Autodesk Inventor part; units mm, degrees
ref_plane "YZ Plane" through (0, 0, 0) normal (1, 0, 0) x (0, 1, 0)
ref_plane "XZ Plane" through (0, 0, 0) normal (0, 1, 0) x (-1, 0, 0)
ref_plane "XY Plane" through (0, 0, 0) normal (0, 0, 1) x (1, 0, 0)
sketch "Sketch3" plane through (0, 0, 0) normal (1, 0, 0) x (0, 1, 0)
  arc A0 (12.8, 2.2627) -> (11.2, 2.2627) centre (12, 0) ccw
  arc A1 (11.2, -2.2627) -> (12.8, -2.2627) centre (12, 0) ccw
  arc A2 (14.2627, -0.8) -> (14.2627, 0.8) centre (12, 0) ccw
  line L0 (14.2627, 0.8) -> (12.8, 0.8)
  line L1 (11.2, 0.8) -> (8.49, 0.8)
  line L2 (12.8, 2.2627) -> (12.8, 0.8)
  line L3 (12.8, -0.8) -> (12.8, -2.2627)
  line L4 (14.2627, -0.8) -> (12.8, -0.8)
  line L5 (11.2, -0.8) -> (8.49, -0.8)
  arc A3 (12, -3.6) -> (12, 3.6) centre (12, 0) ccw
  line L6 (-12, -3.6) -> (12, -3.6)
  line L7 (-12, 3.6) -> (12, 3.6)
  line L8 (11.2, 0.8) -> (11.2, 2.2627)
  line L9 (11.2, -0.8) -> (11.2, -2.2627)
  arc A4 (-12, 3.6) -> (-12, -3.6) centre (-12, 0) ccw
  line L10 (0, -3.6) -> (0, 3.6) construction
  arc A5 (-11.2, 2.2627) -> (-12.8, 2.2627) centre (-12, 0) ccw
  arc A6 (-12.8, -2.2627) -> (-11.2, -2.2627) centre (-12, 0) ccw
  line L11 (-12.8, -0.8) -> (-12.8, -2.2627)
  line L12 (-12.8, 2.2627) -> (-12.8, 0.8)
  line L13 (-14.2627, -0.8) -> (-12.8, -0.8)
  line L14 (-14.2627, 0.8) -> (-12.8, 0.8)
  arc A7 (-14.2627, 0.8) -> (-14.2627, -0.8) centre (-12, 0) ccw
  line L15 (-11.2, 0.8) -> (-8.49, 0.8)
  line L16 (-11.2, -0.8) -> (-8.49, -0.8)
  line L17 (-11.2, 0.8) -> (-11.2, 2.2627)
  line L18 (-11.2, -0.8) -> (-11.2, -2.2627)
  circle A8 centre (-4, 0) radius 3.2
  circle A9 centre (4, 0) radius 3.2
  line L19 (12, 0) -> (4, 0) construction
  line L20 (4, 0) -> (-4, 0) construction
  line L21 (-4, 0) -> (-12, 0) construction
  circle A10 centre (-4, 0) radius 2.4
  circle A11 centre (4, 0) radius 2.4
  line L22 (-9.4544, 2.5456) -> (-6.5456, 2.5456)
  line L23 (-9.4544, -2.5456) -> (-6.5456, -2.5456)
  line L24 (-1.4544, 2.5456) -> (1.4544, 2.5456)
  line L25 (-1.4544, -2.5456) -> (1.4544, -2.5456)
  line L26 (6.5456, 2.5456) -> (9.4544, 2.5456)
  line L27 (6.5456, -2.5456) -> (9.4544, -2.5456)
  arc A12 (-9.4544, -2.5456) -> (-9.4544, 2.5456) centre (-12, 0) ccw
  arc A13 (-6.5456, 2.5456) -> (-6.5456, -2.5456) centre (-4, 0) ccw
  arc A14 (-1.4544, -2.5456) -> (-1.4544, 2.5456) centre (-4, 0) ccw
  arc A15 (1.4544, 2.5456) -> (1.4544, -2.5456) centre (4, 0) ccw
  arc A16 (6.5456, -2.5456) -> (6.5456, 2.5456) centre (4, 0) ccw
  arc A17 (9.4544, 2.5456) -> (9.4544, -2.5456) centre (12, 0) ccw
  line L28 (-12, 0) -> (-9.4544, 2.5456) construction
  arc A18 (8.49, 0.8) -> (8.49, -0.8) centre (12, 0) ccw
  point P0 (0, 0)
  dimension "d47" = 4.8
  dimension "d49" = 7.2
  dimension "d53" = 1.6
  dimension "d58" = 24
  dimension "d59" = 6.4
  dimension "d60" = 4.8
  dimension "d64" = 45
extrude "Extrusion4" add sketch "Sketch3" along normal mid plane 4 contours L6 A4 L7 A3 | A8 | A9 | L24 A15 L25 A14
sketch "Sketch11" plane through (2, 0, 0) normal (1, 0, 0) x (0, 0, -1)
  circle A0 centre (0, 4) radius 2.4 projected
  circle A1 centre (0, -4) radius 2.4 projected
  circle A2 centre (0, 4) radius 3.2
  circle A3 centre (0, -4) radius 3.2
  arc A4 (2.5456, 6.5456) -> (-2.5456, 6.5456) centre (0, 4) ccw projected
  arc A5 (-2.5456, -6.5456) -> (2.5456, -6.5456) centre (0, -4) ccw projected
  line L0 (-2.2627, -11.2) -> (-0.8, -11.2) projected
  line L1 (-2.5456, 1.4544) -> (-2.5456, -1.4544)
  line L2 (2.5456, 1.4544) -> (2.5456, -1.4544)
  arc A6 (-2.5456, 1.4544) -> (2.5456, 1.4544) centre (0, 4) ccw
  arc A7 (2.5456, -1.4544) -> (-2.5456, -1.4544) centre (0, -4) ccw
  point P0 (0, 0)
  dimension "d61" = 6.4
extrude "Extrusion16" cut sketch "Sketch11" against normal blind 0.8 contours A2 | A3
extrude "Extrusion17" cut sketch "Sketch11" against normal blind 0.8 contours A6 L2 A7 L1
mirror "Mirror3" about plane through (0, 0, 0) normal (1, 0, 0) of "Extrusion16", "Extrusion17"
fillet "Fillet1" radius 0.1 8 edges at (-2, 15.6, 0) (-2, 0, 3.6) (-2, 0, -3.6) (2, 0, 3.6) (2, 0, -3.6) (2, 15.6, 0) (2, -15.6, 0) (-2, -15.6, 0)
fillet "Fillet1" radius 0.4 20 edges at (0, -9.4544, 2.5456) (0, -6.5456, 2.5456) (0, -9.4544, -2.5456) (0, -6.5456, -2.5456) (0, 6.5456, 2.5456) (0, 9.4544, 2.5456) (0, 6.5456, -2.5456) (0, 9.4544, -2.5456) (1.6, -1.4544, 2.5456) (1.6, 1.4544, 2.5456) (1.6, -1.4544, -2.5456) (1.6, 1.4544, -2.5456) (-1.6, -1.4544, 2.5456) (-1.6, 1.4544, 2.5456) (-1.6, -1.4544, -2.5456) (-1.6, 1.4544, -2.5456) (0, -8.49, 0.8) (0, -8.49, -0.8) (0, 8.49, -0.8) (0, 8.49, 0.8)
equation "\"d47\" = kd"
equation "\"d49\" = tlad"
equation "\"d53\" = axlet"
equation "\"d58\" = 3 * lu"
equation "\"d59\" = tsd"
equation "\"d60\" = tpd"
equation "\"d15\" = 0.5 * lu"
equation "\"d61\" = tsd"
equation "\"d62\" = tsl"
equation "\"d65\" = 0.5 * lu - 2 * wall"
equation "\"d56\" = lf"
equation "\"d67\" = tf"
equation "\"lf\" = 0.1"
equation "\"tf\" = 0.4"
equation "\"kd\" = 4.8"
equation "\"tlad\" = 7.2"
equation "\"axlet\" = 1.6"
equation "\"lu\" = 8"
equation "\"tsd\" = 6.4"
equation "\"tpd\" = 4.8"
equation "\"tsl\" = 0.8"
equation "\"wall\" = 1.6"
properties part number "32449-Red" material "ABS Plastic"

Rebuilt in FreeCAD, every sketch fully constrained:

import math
import FreeCAD as App
import Part
import Sketcher

V = App.Vector


def edges_at(feature, points):
    """Names of the edges that pass closest to the given points."""
    edges = feature.Shape.Edges
    near = lambda p: min(range(len(edges)), key=lambda i: edges[i].distToShape(Part.Vertex(*p))[0])
    return sorted({f"Edge{near(p) + 1}" for p in points})

doc = App.newDocument("Part")
body = doc.addObject("PartDesign::Body", "Body")

sketch1 = doc.addObject("Sketcher::SketchObject", "Sketch")
body.addObject(sketch1)
sketch1.AttachmentSupport = (doc.YZ_Plane, [""])
sketch1.MapMode = "FlatFace"
sketch1.addGeometry(Part.LineSegment(V(-12, -3.6, 0), V(12, -3.6, 0)), False)
sketch1.addGeometry(Part.ArcOfCircle(Part.Circle(V(12, 0, 0), V(0, 0, 1), 3.6), math.radians(-90), math.radians(90)), False)
sketch1.addGeometry(Part.LineSegment(V(12, 3.6, 0), V(-12, 3.6, 0)), False)
sketch1.addGeometry(Part.ArcOfCircle(Part.Circle(V(-12, 0, 0), V(0, 0, 1), 3.6), math.radians(90), math.radians(270)), False)
sketch1.addGeometry(Part.ArcOfCircle(Part.Circle(V(-12, 0, 0), V(0, 0, 1), 2.399961), math.radians(70.528448), math.radians(109.471552)), False)
sketch1.addGeometry(Part.LineSegment(V(-11.2, 2.2627, 0), V(-11.2, 0.8, 0)), False)
sketch1.addGeometry(Part.LineSegment(V(-11.2, 0.8, 0), V(-8.49, 0.8, 0)), False)
sketch1.addGeometry(Part.ArcOfCircle(Part.Circle(V(-12, 0, 0), V(0, 0, 1), 3.600022), math.radians(12.839538), math.radians(45)), False)
sketch1.addGeometry(Part.LineSegment(V(-9.4544, 2.5456, 0), V(-6.5456, 2.5456, 0)), False)
sketch1.addGeometry(Part.ArcOfCircle(Part.Circle(V(-4, 0, 0), V(0, 0, 1), 3.600022), math.radians(135), math.radians(225)), False)
sketch1.addGeometry(Part.LineSegment(V(-6.5456, -2.5456, 0), V(-9.4544, -2.5456, 0)), False)
sketch1.addGeometry(Part.ArcOfCircle(Part.Circle(V(-12, 0, 0), V(0, 0, 1), 3.600022), math.radians(-45), math.radians(-12.839538)), False)
sketch1.addGeometry(Part.LineSegment(V(-8.49, -0.8, 0), V(-11.2, -0.8, 0)), False)
sketch1.addGeometry(Part.LineSegment(V(-11.2, -0.8, 0), V(-11.2, -2.2627, 0)), False)
sketch1.addGeometry(Part.ArcOfCircle(Part.Circle(V(-12, 0, 0), V(0, 0, 1), 2.399961), math.radians(-109.471552), math.radians(-70.528448)), False)
sketch1.addGeometry(Part.LineSegment(V(-12.8, -2.2627, 0), V(-12.8, -0.8, 0)), False)
sketch1.addGeometry(Part.LineSegment(V(-12.8, -0.8, 0), V(-14.2627, -0.8, 0)), False)
sketch1.addGeometry(Part.ArcOfCircle(Part.Circle(V(-12, 0, 0), V(0, 0, 1), 2.399961), math.radians(160.528448), math.radians(199.471552)), False)
sketch1.addGeometry(Part.LineSegment(V(-14.2627, 0.8, 0), V(-12.8, 0.8, 0)), False)
sketch1.addGeometry(Part.LineSegment(V(-12.8, 0.8, 0), V(-12.8, 2.2627, 0)), False)
sketch1.addGeometry(Part.ArcOfCircle(Part.Circle(V(12, 0, 0), V(0, 0, 1), 2.399961), math.radians(70.528448), math.radians(109.471552)), False)
sketch1.addGeometry(Part.LineSegment(V(12.8, 2.2627, 0), V(12.8, 0.8, 0)), False)
sketch1.addGeometry(Part.LineSegment(V(12.8, 0.8, 0), V(14.2627, 0.8, 0)), False)
sketch1.addGeometry(Part.ArcOfCircle(Part.Circle(V(12, 0, 0), V(0, 0, 1), 2.399961), math.radians(-19.471552), math.radians(19.471552)), False)
sketch1.addGeometry(Part.LineSegment(V(14.2627, -0.8, 0), V(12.8, -0.8, 0)), False)
sketch1.addGeometry(Part.LineSegment(V(12.8, -0.8, 0), V(12.8, -2.2627, 0)), False)
sketch1.addGeometry(Part.ArcOfCircle(Part.Circle(V(12, 0, 0), V(0, 0, 1), 2.399961), math.radians(-109.471552), math.radians(-70.528448)), False)
sketch1.addGeometry(Part.LineSegment(V(11.2, -2.2627, 0), V(11.2, -0.8, 0)), False)
sketch1.addGeometry(Part.LineSegment(V(11.2, -0.8, 0), V(8.49, -0.8, 0)), False)
sketch1.addGeometry(Part.ArcOfCircle(Part.Circle(V(12, 0, 0), V(0, 0, 1), 3.600022), math.radians(-167.160462), math.radians(-135)), False)
sketch1.addGeometry(Part.LineSegment(V(9.4544, -2.5456, 0), V(6.5456, -2.5456, 0)), False)
sketch1.addGeometry(Part.ArcOfCircle(Part.Circle(V(4, 0, 0), V(0, 0, 1), 3.600022), math.radians(-45), math.radians(45)), False)
sketch1.addGeometry(Part.LineSegment(V(6.5456, 2.5456, 0), V(9.4544, 2.5456, 0)), False)
sketch1.addGeometry(Part.ArcOfCircle(Part.Circle(V(12, 0, 0), V(0, 0, 1), 3.600022), math.radians(135), math.radians(167.160462)), False)
sketch1.addGeometry(Part.LineSegment(V(8.49, 0.8, 0), V(11.2, 0.8, 0)), False)
sketch1.addGeometry(Part.LineSegment(V(11.2, 0.8, 0), V(11.2, 2.2627, 0)), False)
sketch1.addGeometry(Part.Circle(V(-4, 0, 0), V(0, 0, 1), 2.4), False)
sketch1.addGeometry(Part.Circle(V(4, 0, 0), V(0, 0, 1), 2.4), False)
sketch1.addConstraint(Sketcher.Constraint("Tangent", 0, 2, 1, 1))
sketch1.addConstraint(Sketcher.Constraint("Tangent", 1, 2, 2, 1))
sketch1.addConstraint(Sketcher.Constraint("Tangent", 2, 2, 3, 1))
sketch1.addConstraint(Sketcher.Constraint("Tangent", 3, 2, 0, 1))
sketch1.addConstraint(Sketcher.Constraint("Coincident", 4, 1, 5, 1))
sketch1.addConstraint(Sketcher.Constraint("Coincident", 5, 2, 6, 1))
sketch1.addConstraint(Sketcher.Constraint("Coincident", 6, 2, 7, 1))
sketch1.addConstraint(Sketcher.Constraint("Coincident", 7, 2, 8, 1))
sketch1.addConstraint(Sketcher.Constraint("Coincident", 8, 2, 9, 1))
sketch1.addConstraint(Sketcher.Constraint("Coincident", 9, 2, 10, 1))
sketch1.addConstraint(Sketcher.Constraint("Coincident", 10, 2, 11, 1))
sketch1.addConstraint(Sketcher.Constraint("Coincident", 11, 2, 12, 1))
sketch1.addConstraint(Sketcher.Constraint("Coincident", 12, 2, 13, 1))
sketch1.addConstraint(Sketcher.Constraint("Coincident", 13, 2, 14, 2))
sketch1.addConstraint(Sketcher.Constraint("Coincident", 14, 1, 15, 1))
sketch1.addConstraint(Sketcher.Constraint("Coincident", 15, 2, 16, 1))
sketch1.addConstraint(Sketcher.Constraint("Coincident", 16, 2, 17, 2))
sketch1.addConstraint(Sketcher.Constraint("Coincident", 17, 1, 18, 1))
sketch1.addConstraint(Sketcher.Constraint("Coincident", 18, 2, 19, 1))
sketch1.addConstraint(Sketcher.Constraint("Coincident", 19, 2, 4, 2))
sketch1.addConstraint(Sketcher.Constraint("Coincident", 20, 1, 21, 1))
sketch1.addConstraint(Sketcher.Constraint("Coincident", 21, 2, 22, 1))
sketch1.addConstraint(Sketcher.Constraint("Coincident", 22, 2, 23, 2))
sketch1.addConstraint(Sketcher.Constraint("Coincident", 23, 1, 24, 1))
sketch1.addConstraint(Sketcher.Constraint("Coincident", 24, 2, 25, 1))
sketch1.addConstraint(Sketcher.Constraint("Coincident", 25, 2, 26, 2))
sketch1.addConstraint(Sketcher.Constraint("Coincident", 26, 1, 27, 1))
sketch1.addConstraint(Sketcher.Constraint("Coincident", 27, 2, 28, 1))
sketch1.addConstraint(Sketcher.Constraint("Coincident", 28, 2, 29, 1))
sketch1.addConstraint(Sketcher.Constraint("Coincident", 29, 2, 30, 1))
sketch1.addConstraint(Sketcher.Constraint("Coincident", 30, 2, 31, 1))
sketch1.addConstraint(Sketcher.Constraint("Coincident", 31, 2, 32, 1))
sketch1.addConstraint(Sketcher.Constraint("Coincident", 32, 2, 33, 1))
sketch1.addConstraint(Sketcher.Constraint("Coincident", 33, 2, 34, 1))
sketch1.addConstraint(Sketcher.Constraint("Coincident", 34, 2, 35, 1))
sketch1.addConstraint(Sketcher.Constraint("Coincident", 35, 2, 20, 2))
sketch1.addConstraint(Sketcher.Constraint("Horizontal", 0))
sketch1.addConstraint(Sketcher.Constraint("Horizontal", 2))
sketch1.addConstraint(Sketcher.Constraint("Vertical", 5))
sketch1.addConstraint(Sketcher.Constraint("Horizontal", 6))
sketch1.addConstraint(Sketcher.Constraint("Horizontal", 8))
sketch1.addConstraint(Sketcher.Constraint("Horizontal", 10))
sketch1.addConstraint(Sketcher.Constraint("Horizontal", 12))
sketch1.addConstraint(Sketcher.Constraint("Vertical", 13))
sketch1.addConstraint(Sketcher.Constraint("Vertical", 15))
sketch1.addConstraint(Sketcher.Constraint("Horizontal", 16))
sketch1.addConstraint(Sketcher.Constraint("Horizontal", 18))
sketch1.addConstraint(Sketcher.Constraint("Vertical", 19))
sketch1.addConstraint(Sketcher.Constraint("Vertical", 21))
sketch1.addConstraint(Sketcher.Constraint("Horizontal", 22))
sketch1.addConstraint(Sketcher.Constraint("Horizontal", 24))
sketch1.addConstraint(Sketcher.Constraint("Vertical", 25))
sketch1.addConstraint(Sketcher.Constraint("Vertical", 27))
sketch1.addConstraint(Sketcher.Constraint("Horizontal", 28))
sketch1.addConstraint(Sketcher.Constraint("Horizontal", 30))
sketch1.addConstraint(Sketcher.Constraint("Horizontal", 32))
sketch1.addConstraint(Sketcher.Constraint("Horizontal", 34))
sketch1.addConstraint(Sketcher.Constraint("Vertical", 35))
sketch1.addConstraint(Sketcher.Constraint("Coincident", 4, 3, 3, 3))
sketch1.addConstraint(Sketcher.Constraint("Coincident", 7, 3, 3, 3))
sketch1.addConstraint(Sketcher.Constraint("Coincident", 11, 3, 3, 3))
sketch1.addConstraint(Sketcher.Constraint("Coincident", 14, 3, 3, 3))
sketch1.addConstraint(Sketcher.Constraint("Coincident", 17, 3, 3, 3))
sketch1.addConstraint(Sketcher.Constraint("Coincident", 20, 3, 1, 3))
sketch1.addConstraint(Sketcher.Constraint("Coincident", 23, 3, 1, 3))
sketch1.addConstraint(Sketcher.Constraint("Coincident", 26, 3, 1, 3))
sketch1.addConstraint(Sketcher.Constraint("Coincident", 29, 3, 1, 3))
sketch1.addConstraint(Sketcher.Constraint("Coincident", 33, 3, 1, 3))
sketch1.addConstraint(Sketcher.Constraint("Coincident", 36, 3, 9, 3))
sketch1.addConstraint(Sketcher.Constraint("Coincident", 37, 3, 31, 3))
sketch1.addConstraint(Sketcher.Constraint("Equal", 3, 7))
sketch1.addConstraint(Sketcher.Constraint("Equal", 7, 9))
sketch1.addConstraint(Sketcher.Constraint("Equal", 9, 11))
sketch1.addConstraint(Sketcher.Constraint("Equal", 4, 14))
sketch1.addConstraint(Sketcher.Constraint("Equal", 14, 17))
sketch1.addConstraint(Sketcher.Constraint("Equal", 17, 20))
sketch1.addConstraint(Sketcher.Constraint("Equal", 20, 23))
sketch1.addConstraint(Sketcher.Constraint("Equal", 23, 26))
sketch1.addConstraint(Sketcher.Constraint("Equal", 11, 29))
sketch1.addConstraint(Sketcher.Constraint("Equal", 29, 31))
sketch1.addConstraint(Sketcher.Constraint("Equal", 31, 33))
sketch1.addConstraint(Sketcher.Constraint("Equal", 26, 36))
sketch1.addConstraint(Sketcher.Constraint("Equal", 36, 37))
sketch1.addConstraint(Sketcher.Constraint("Symmetric", 1, 3, 3, 3, -1, 1))
sketch1.addConstraint(Sketcher.Constraint("Symmetric", 9, 3, 31, 3, -1, 1))
sketch1.addConstraint(Sketcher.Constraint("Symmetric", 15, 2, 21, 2, -1, 1))
sketch1.addConstraint(Sketcher.Constraint("Symmetric", 18, 2, 24, 2, -1, 1))
sketch1.addConstraint(Sketcher.Constraint("Symmetric", 5, 2, 27, 2, -1, 1))
sketch1.addConstraint(Sketcher.Constraint("Symmetric", 12, 2, 34, 2, -1, 1))
sketch1.addConstraint(Sketcher.Constraint("Symmetric", 18, 2, 21, 2, -2))
sketch1.addConstraint(Sketcher.Constraint("Symmetric", 12, 2, 27, 2, -2))
sketch1.addConstraint(Sketcher.Constraint("Symmetric", 9, 2, 30, 2, -2))
sketch1.addConstraint(Sketcher.Constraint("Horizontal", 13, 2, 14, 1))
sketch1.addConstraint(Sketcher.Constraint("Horizontal", 12, 2, 15, 2))
sketch1.addConstraint(Sketcher.Constraint("Horizontal", 8, 2, 31, 2))
sketch1.addConstraint(Sketcher.Constraint("Vertical", 8, 2, 9, 2))
sketch1.addConstraint(Sketcher.Constraint("Equal", 24, 5))
sketch1.addConstraint(Sketcher.Constraint("Diameter", 36, 4.8))
sketch1.addConstraint(Sketcher.Constraint("Radius", 1, 3.6))
sketch1.addConstraint(Sketcher.Constraint("DistanceX", 0, 1, 0, 2, 24.0))
sketch1.addConstraint(Sketcher.Constraint("DistanceY", 11, 2, 6, 2, 1.6))
sketch1.addConstraint(Sketcher.Constraint("DistanceX", 9, 3, -1, 1, 4.0))
sketch1.addConstraint(Sketcher.Constraint("DistanceX", 8, 1, 8, 2, 2.9088))
pad1 = doc.addObject("PartDesign::Pad", "Pad")
body.addObject(pad1)
pad1.Profile = sketch1
pad1.Length = 4
pad1.Midplane = True

sketch2 = doc.addObject("Sketcher::SketchObject", "Sketch001")
body.addObject(sketch2)
sketch2.AttachmentSupport = (doc.YZ_Plane, [""])
sketch2.MapMode = "FlatFace"
sketch2.AttachmentOffset = App.Placement(V(0, 0, 2), App.Rotation())
sketch2.addGeometry(Part.Circle(V(4, 0, 0), V(0, 0, 1), 3.2), False)
sketch2.addGeometry(Part.Circle(V(4, 0, 0), V(0, 0, 1), 2.4), False)
sketch2.addGeometry(Part.Circle(V(-4, 0, 0), V(0, 0, 1), 3.2), False)
sketch2.addGeometry(Part.Circle(V(-4, 0, 0), V(0, 0, 1), 2.4), False)
sketch2.addConstraint(Sketcher.Constraint("Coincident", 1, 3, 0, 3))
sketch2.addConstraint(Sketcher.Constraint("Coincident", 3, 3, 2, 3))
sketch2.addConstraint(Sketcher.Constraint("Equal", 0, 2))
sketch2.addConstraint(Sketcher.Constraint("Equal", 1, 3))
sketch2.addConstraint(Sketcher.Constraint("Symmetric", 0, 3, 2, 3, -1, 1))
sketch2.addConstraint(Sketcher.Constraint("PointOnObject", 0, 3, -1))
sketch2.addConstraint(Sketcher.Constraint("Diameter", 0, 6.4))
sketch2.addConstraint(Sketcher.Constraint("Diameter", 1, 4.8))
sketch2.addConstraint(Sketcher.Constraint("DistanceX", -1, 1, 0, 3, 4.0))
pocket1 = doc.addObject("PartDesign::Pocket", "Pocket")
body.addObject(pocket1)
pocket1.Profile = sketch2
pocket1.Length = 0.8

sketch3 = doc.addObject("Sketcher::SketchObject", "Sketch002")
body.addObject(sketch3)
sketch3.AttachmentSupport = (doc.YZ_Plane, [""])
sketch3.MapMode = "FlatFace"
sketch3.AttachmentOffset = App.Placement(V(0, 0, 2), App.Rotation())
sketch3.addGeometry(Part.ArcOfCircle(Part.Circle(V(4, 0, 0), V(0, 0, 1), 3.600022), math.radians(135), math.radians(225)), False)
sketch3.addGeometry(Part.LineSegment(V(1.4544, 2.5456, 0), V(-1.4544, 2.5456, 0)), False)
sketch3.addGeometry(Part.ArcOfCircle(Part.Circle(V(-4, 0, 0), V(0, 0, 1), 3.600022), math.radians(-45), math.radians(45)), False)
sketch3.addGeometry(Part.LineSegment(V(-1.4544, -2.5456, 0), V(1.4544, -2.5456, 0)), False)
sketch3.addConstraint(Sketcher.Constraint("Coincident", 0, 1, 1, 1))
sketch3.addConstraint(Sketcher.Constraint("Coincident", 1, 2, 2, 2))
sketch3.addConstraint(Sketcher.Constraint("Coincident", 2, 1, 3, 1))
sketch3.addConstraint(Sketcher.Constraint("Coincident", 3, 2, 0, 2))
sketch3.addConstraint(Sketcher.Constraint("Horizontal", 1))
sketch3.addConstraint(Sketcher.Constraint("Horizontal", 3))
sketch3.addConstraint(Sketcher.Constraint("Equal", 0, 2))
sketch3.addConstraint(Sketcher.Constraint("Symmetric", 0, 3, 2, 3, -1, 1))
sketch3.addConstraint(Sketcher.Constraint("Symmetric", 1, 2, 2, 1, -1))
sketch3.addConstraint(Sketcher.Constraint("Radius", 0, 3.6))
sketch3.addConstraint(Sketcher.Constraint("DistanceX", -1, 1, 0, 3, 4.0))
sketch3.addConstraint(Sketcher.Constraint("DistanceX", 1, 2, 1, 1, 2.9088))
pocket2 = doc.addObject("PartDesign::Pocket", "Pocket001")
body.addObject(pocket2)
pocket2.Profile = sketch3
pocket2.Length = 0.8
doc.recompute()

mirrored = doc.addObject("PartDesign::Mirrored", "Mirrored")
body.addObject(mirrored)
mirrored.Originals = [pocket1, pocket2]
mirrored.MirrorPlane = (doc.YZ_Plane, [""])
body.Tip = mirrored
doc.recompute()

fillet = doc.addObject("PartDesign::Fillet", "Fillet")
body.addObject(fillet)
fillet.Base = (mirrored, edges_at(mirrored, [
    (-2, 15.6, 0),
    (-2, 0, 3.6),
    (-2, 0, -3.6),
    (2, 0, 3.6),
    (2, 0, -3.6),
    (2, 15.6, 0),
    (2, -15.6, 0),
    (-2, -15.6, 0),
]))
fillet.Radius = 0.1
doc.recompute()

fillet2 = doc.addObject("PartDesign::Fillet", "Fillet001")
body.addObject(fillet2)
fillet2.Base = (fillet, edges_at(fillet, [
    (0, -9.454, 2.546),
    (0, -6.546, 2.546),
    (0, -9.454, -2.546),
    (0, -6.546, -2.546),
    (0, 6.546, 2.546),
    (0, 9.454, 2.546),
    (0, 6.546, -2.546),
    (0, 9.454, -2.546),
    (1.6, -1.454, 2.546),
    (1.6, 1.454, 2.546),
    (1.6, -1.454, -2.546),
    (1.6, 1.454, -2.546),
    (-1.6, -1.454, 2.546),
    (-1.6, 1.454, 2.546),
    (-1.6, -1.454, -2.546),
    (-1.6, 1.454, -2.546),
    (0, -8.49, 0.8),
    (0, -8.49, -0.8),
    (0, 8.49, -0.8),
    (0, 8.49, 0.8),
]))
fillet2.Radius = 0.4

doc.recompute()
